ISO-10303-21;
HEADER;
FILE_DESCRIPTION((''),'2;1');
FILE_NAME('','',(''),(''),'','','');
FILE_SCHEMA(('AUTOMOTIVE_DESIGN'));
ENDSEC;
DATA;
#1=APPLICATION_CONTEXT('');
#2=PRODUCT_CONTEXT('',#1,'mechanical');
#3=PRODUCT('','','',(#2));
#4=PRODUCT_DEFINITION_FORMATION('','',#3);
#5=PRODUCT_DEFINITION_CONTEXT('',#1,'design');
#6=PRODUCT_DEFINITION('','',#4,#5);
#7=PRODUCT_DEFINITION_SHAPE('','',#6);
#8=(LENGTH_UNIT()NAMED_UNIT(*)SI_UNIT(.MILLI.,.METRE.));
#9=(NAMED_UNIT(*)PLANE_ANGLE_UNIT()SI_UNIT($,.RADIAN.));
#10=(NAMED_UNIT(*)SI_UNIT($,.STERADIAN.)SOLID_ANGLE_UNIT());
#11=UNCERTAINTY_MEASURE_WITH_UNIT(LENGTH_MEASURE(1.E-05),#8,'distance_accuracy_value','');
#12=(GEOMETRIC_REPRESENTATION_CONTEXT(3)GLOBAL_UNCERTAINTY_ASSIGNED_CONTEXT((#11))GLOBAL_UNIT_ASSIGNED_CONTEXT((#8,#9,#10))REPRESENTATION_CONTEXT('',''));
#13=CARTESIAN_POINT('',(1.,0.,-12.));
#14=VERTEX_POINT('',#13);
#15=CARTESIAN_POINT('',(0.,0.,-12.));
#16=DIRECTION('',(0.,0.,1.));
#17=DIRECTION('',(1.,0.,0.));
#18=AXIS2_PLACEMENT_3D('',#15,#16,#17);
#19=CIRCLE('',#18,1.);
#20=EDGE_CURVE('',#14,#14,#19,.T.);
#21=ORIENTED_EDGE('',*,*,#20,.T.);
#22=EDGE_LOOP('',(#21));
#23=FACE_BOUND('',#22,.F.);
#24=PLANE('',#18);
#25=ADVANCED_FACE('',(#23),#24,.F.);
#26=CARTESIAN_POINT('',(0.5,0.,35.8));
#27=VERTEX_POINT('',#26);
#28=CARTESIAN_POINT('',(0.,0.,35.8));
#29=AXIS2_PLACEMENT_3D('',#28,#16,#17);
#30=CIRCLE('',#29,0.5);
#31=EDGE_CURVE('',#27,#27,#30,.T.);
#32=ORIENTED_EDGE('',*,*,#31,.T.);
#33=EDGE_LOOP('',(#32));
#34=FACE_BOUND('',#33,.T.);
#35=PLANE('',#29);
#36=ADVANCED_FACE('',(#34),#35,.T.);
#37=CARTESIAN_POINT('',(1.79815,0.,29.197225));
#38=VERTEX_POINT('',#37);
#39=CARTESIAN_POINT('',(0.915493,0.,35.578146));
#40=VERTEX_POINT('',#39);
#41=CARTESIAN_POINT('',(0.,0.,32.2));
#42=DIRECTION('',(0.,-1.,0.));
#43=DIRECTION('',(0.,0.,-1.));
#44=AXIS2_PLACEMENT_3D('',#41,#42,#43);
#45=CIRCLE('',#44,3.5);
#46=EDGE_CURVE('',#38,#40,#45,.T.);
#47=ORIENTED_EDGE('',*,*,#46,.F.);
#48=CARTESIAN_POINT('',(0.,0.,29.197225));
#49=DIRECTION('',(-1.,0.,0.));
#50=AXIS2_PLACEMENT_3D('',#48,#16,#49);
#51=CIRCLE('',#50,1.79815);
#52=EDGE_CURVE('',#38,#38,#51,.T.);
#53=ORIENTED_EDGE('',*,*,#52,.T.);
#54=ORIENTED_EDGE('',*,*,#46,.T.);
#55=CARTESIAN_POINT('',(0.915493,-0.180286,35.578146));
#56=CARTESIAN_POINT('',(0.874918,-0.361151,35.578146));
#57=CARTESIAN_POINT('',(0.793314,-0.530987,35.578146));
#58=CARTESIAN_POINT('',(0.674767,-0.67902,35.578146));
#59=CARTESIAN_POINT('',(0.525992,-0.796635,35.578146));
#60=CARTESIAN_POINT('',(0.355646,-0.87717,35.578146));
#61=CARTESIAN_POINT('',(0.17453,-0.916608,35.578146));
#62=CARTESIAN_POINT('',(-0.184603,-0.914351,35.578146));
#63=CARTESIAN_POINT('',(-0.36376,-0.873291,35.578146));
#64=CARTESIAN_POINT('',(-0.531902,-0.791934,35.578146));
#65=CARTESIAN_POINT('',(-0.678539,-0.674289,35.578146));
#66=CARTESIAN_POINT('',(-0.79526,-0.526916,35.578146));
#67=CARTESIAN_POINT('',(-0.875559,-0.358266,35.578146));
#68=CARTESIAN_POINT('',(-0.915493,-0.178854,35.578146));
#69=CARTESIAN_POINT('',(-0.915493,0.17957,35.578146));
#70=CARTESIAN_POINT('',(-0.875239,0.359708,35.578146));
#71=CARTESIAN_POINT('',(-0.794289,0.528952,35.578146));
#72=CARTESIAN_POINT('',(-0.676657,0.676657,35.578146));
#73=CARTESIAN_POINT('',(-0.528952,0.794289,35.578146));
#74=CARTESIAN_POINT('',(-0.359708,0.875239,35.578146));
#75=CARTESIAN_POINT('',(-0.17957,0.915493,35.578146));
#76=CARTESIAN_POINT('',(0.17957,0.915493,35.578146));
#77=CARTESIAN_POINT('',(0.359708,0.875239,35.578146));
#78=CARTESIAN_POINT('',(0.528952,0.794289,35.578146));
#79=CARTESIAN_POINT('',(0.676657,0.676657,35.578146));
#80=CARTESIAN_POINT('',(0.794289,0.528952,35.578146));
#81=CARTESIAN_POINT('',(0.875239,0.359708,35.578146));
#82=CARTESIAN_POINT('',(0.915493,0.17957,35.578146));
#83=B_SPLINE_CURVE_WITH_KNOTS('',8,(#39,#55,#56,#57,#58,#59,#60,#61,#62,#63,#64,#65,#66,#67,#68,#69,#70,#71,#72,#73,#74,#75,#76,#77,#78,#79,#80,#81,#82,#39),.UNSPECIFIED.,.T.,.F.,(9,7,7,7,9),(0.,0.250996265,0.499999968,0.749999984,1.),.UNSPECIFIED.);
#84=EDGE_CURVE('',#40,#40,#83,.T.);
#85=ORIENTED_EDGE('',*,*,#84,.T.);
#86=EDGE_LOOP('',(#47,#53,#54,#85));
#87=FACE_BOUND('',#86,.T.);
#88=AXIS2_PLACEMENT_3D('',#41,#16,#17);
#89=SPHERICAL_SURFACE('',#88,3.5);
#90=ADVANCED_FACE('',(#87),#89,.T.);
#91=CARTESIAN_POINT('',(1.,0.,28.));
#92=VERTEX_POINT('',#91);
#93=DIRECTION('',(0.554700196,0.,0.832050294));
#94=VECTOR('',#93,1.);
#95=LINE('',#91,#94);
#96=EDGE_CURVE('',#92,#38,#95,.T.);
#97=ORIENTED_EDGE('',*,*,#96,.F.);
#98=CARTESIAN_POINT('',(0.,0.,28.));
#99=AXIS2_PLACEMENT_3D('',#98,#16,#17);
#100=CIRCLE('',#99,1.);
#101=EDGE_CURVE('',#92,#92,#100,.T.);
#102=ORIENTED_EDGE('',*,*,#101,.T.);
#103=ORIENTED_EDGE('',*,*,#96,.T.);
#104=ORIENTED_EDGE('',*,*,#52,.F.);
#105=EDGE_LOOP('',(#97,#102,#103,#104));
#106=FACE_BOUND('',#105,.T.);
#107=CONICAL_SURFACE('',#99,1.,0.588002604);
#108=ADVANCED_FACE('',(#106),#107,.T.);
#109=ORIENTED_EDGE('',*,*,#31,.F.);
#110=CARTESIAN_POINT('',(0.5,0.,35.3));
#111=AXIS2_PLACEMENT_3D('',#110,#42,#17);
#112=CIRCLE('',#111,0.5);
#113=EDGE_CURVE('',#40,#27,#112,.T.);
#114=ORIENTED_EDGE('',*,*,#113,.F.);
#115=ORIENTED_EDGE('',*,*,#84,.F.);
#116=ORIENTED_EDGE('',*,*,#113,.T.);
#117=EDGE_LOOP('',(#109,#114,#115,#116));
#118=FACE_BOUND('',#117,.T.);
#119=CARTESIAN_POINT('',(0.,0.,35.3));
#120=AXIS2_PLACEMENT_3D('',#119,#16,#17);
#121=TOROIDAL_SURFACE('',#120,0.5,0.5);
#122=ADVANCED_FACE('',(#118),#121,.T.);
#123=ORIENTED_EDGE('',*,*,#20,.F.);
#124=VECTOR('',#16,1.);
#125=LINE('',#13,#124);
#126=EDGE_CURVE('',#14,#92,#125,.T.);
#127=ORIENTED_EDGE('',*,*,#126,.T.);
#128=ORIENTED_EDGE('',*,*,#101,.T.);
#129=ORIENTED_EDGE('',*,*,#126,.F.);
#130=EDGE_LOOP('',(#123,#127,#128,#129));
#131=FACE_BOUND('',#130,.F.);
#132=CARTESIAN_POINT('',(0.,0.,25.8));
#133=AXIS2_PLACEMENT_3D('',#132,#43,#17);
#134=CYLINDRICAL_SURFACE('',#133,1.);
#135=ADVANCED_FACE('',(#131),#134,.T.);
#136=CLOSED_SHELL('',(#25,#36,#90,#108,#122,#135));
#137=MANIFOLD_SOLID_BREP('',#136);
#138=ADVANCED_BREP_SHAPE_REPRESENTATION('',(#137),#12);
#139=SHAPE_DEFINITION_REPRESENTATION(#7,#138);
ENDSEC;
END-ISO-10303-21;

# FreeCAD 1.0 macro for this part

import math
import FreeCAD as App
import Part
import Sketcher


def edges_at(feature, points):
    """Names of the edges that pass closest to the given points."""
    edges = feature.Shape.Edges
    near = lambda p: min(range(len(edges)), key=lambda i: edges[i].distToShape(Part.Vertex(*p))[0])
    return sorted({f"Edge{near(p) + 1}" for p in points})

doc = App.newDocument("Part")
body = doc.addObject("PartDesign::Body", "Body")

# Sketch on XZ plane
sketch1 = doc.addObject("Sketcher::SketchObject", "Sketch")
body.addObject(sketch1)
sketch1.AttachmentSupport = (doc.XZ_Plane, [""])
sketch1.MapMode = "FlatFace"
sketch1.addGeometry([
    Part.ArcOfCircle(Part.Circle(App.Vector(0, 32.2, 0), App.Vector(0, 0, 1), 3.5), math.radians(-90), math.radians(90)),
    Part.LineSegment(App.Vector(0, 35.7, 0), App.Vector(0, 28.7, 0)),
], False)
sketch1.addConstraint([
    Sketcher.Constraint("Coincident", 0, 1, 1, 2),
    Sketcher.Constraint("Coincident", 1, 1, 0, 2),
    Sketcher.Constraint("Vertical", 1),
    Sketcher.Constraint("PointOnObject", 0, 3, -2),
    Sketcher.Constraint("PointOnObject", 0, 1, -2),
    Sketcher.Constraint("Radius", 0, 3.5),
    Sketcher.Constraint("DistanceY", -1, 1, 0, 3, 32.2),
])
revolution = doc.addObject("PartDesign::Revolution", "Revolution")
body.addObject(revolution)
revolution.Profile = sketch1
revolution.ReferenceAxis = (sketch1, ["V_Axis"])
revolution.Angle = 360
body2 = doc.addObject("PartDesign::Body", "Body001")

# Sketch on XZ plane
sketch2 = doc.addObject("Sketcher::SketchObject", "Sketch001")
body2.addObject(sketch2)
sketch2.AttachmentSupport = (doc.getObject("XZ_Plane001"), [""])
sketch2.MapMode = "FlatFace"
sketch2.addGeometry([
    Part.LineSegment(App.Vector(0, 28, 0), App.Vector(1, 28, 0)),
    Part.LineSegment(App.Vector(1, 28, 0), App.Vector(3, 31, 0)),
    Part.LineSegment(App.Vector(3, 31, 0), App.Vector(0, 31, 0)),
    Part.LineSegment(App.Vector(0, 31, 0), App.Vector(0, 28, 0)),
], False)
sketch2.addConstraint([
    Sketcher.Constraint("Coincident", 0, 2, 1, 1),
    Sketcher.Constraint("Coincident", 1, 2, 2, 1),
    Sketcher.Constraint("Coincident", 2, 2, 3, 1),
    Sketcher.Constraint("Coincident", 3, 2, 0, 1),
    Sketcher.Constraint("Horizontal", 0),
    Sketcher.Constraint("Horizontal", 2),
    Sketcher.Constraint("Vertical", 3),
    Sketcher.Constraint("PointOnObject", 2, 2, -2),
    Sketcher.Constraint("Equal", 2, 3),
    Sketcher.Constraint("DistanceX", 0, 1, 0, 2, 1.0),
    Sketcher.Constraint("DistanceX", 2, 2, 2, 1, 3.0),
    Sketcher.Constraint("DistanceY", -1, 1, 0, 2, 28.0),
])
revolution2 = doc.addObject("PartDesign::Revolution", "Revolution001")
body2.addObject(revolution2)
revolution2.Profile = sketch2
revolution2.ReferenceAxis = (sketch2, ["V_Axis"])
revolution2.Angle = 360
body3 = doc.addObject("PartDesign::Body", "Body002")

# Sketch on XY plane
sketch3 = doc.addObject("Sketcher::SketchObject", "Sketch002")
body3.addObject(sketch3)
sketch3.AttachmentSupport = (doc.getObject("XY_Plane002"), [""])
sketch3.MapMode = "FlatFace"
sketch3.AttachmentOffset = App.Placement(App.Vector(0, 0, -12), App.Rotation())
sketch3.addGeometry(Part.Circle(App.Vector(0, 0, 0), App.Vector(0, 0, 1), 1), False)
sketch3.addConstraint([
    Sketcher.Constraint("Coincident", 0, 3, -1, 1),
    Sketcher.Constraint("Diameter", 0, 2.0),
])
pad1 = doc.addObject("PartDesign::Pad", "Pad")
body3.addObject(pad1)
pad1.Profile = sketch3
pad1.Length = 40
doc.recompute()

boolean = doc.addObject("PartDesign::Boolean", "Boolean")
body3.addObject(boolean)
boolean.Type = "Fuse"
boolean.addObjects([body2])
body4 = doc.addObject("PartDesign::Body", "Body003")

# Sketch on XY plane
sketch4 = doc.addObject("Sketcher::SketchObject", "Sketch003")
body4.addObject(sketch4)
sketch4.AttachmentSupport = (doc.getObject("XY_Plane003"), [""])
sketch4.MapMode = "FlatFace"
sketch4.AttachmentOffset = App.Placement(App.Vector(0, 0, 25.8), App.Rotation())
sketch4.addGeometry(Part.Circle(App.Vector(0, 0, 0), App.Vector(0, 0, 1), 1), False)
sketch4.addConstraint([
    Sketcher.Constraint("Coincident", 0, 3, -1, 1),
    Sketcher.Constraint("Diameter", 0, 2.0),
])
pad2 = doc.addObject("PartDesign::Pad", "Pad001")
body4.addObject(pad2)
pad2.Profile = sketch4
pad2.Length = 10
doc.recompute()

fillet = doc.addObject("PartDesign::Fillet", "Fillet")
body4.addObject(fillet)
fillet.Base = (pad2, edges_at(pad2, [(-1, 0, 35.8)]))
fillet.Radius = 0.5
doc.recompute()

boolean2 = doc.addObject("PartDesign::Boolean", "Boolean001")
body4.addObject(boolean2)
boolean2.Type = "Fuse"
boolean2.addObjects([body3])
doc.recompute()

boolean3 = doc.addObject("PartDesign::Boolean", "Boolean002")
body4.addObject(boolean3)
boolean3.Type = "Fuse"
boolean3.addObjects([body])

doc.recompute()
